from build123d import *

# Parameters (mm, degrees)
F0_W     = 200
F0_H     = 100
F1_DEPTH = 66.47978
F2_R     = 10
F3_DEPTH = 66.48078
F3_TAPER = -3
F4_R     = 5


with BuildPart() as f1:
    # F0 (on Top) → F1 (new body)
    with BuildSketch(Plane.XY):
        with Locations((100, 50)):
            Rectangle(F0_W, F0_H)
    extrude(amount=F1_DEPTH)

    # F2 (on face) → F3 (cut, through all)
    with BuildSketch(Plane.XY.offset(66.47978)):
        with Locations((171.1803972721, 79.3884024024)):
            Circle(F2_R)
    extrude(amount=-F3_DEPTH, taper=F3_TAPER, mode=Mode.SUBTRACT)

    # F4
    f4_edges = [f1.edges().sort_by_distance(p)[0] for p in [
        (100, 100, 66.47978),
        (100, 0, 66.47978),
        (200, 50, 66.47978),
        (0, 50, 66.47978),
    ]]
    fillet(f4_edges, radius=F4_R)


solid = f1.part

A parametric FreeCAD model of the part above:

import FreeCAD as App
import Part
import Sketcher
Q = App.Units.Quantity


def edges_at(feature, points):
    """Names of the edges that pass closest to the given points."""
    edges = feature.Shape.Edges
    near = lambda p: min(range(len(edges)), key=lambda i: edges[i].distToShape(Part.Vertex(*p))[0])
    return sorted({f"Edge{near(p) + 1}" for p in points})

doc = App.newDocument("Part")
body = doc.addObject("PartDesign::Body", "Body")

# Sketch on XY plane
sketch1 = doc.addObject("Sketcher::SketchObject", "Sketch")
body.addObject(sketch1)
sketch1.AttachmentSupport = (doc.XY_Plane, [""])
sketch1.MapMode = "FlatFace"
sketch1.addGeometry([
    Part.LineSegment(App.Vector(0, 100, 0), App.Vector(0, 0, 0)),
    Part.LineSegment(App.Vector(0, 0, 0), App.Vector(200, 0, 0)),
    Part.LineSegment(App.Vector(200, 0, 0), App.Vector(200, 100, 0)),
    Part.LineSegment(App.Vector(200, 100, 0), App.Vector(0, 100, 0)),
], False)
sketch1.addConstraint([
    Sketcher.Constraint("Coincident", 0, 2, 1, 1),
    Sketcher.Constraint("Coincident", 1, 2, 2, 1),
    Sketcher.Constraint("Coincident", 2, 2, 3, 1),
    Sketcher.Constraint("Coincident", 3, 2, 0, 1),
    Sketcher.Constraint("Vertical", 0),
    Sketcher.Constraint("Horizontal", 1),
    Sketcher.Constraint("Vertical", 2),
    Sketcher.Constraint("Horizontal", 3),
    Sketcher.Constraint("Coincident", 0, 2, -1, 1),
    Sketcher.Constraint("DistanceX", 1, 1, 1, 2, Q("200 mm")),
    Sketcher.Constraint("DistanceY", 0, 2, 0, 1, Q("100 mm")),
])
pad1 = doc.addObject("PartDesign::Pad", "Pad")
body.addObject(pad1)
pad1.Profile = sketch1
pad1.Length = 66.47978

# Sketch on XY plane
sketch2 = doc.addObject("Sketcher::SketchObject", "Sketch001")
body.addObject(sketch2)
sketch2.AttachmentSupport = (doc.XY_Plane, [""])
sketch2.MapMode = "FlatFace"
sketch2.AttachmentOffset = App.Placement(App.Vector(0, 0, 66.47978), App.Rotation())
sketch2.addGeometry(Part.Circle(App.Vector(171, 79, 0), App.Vector(0, 0, 1), 10), False)
sketch2.addConstraint([
    Sketcher.Constraint("Diameter", 0, Q("20 mm")),
    Sketcher.Constraint("DistanceX", -1, 1, 0, 3, Q("171.180397 mm")),
    Sketcher.Constraint("DistanceY", -1, 1, 0, 3, Q("79.388402 mm")),
])
pocket1 = doc.addObject("PartDesign::Pocket", "Pocket")
body.addObject(pocket1)
pocket1.Profile = sketch2
pocket1.Length = 66.48078
pocket1.TaperAngle = 3
doc.recompute()

fillet = doc.addObject("PartDesign::Fillet", "Fillet")
body.addObject(fillet)
fillet.Base = (pocket1, edges_at(pocket1, [
    (100, 100, 66.48),
    (100, 0, 66.48),
    (200, 50, 66.48),
    (0, 50, 66.48),
]))
fillet.Radius = 5

doc.recompute()
